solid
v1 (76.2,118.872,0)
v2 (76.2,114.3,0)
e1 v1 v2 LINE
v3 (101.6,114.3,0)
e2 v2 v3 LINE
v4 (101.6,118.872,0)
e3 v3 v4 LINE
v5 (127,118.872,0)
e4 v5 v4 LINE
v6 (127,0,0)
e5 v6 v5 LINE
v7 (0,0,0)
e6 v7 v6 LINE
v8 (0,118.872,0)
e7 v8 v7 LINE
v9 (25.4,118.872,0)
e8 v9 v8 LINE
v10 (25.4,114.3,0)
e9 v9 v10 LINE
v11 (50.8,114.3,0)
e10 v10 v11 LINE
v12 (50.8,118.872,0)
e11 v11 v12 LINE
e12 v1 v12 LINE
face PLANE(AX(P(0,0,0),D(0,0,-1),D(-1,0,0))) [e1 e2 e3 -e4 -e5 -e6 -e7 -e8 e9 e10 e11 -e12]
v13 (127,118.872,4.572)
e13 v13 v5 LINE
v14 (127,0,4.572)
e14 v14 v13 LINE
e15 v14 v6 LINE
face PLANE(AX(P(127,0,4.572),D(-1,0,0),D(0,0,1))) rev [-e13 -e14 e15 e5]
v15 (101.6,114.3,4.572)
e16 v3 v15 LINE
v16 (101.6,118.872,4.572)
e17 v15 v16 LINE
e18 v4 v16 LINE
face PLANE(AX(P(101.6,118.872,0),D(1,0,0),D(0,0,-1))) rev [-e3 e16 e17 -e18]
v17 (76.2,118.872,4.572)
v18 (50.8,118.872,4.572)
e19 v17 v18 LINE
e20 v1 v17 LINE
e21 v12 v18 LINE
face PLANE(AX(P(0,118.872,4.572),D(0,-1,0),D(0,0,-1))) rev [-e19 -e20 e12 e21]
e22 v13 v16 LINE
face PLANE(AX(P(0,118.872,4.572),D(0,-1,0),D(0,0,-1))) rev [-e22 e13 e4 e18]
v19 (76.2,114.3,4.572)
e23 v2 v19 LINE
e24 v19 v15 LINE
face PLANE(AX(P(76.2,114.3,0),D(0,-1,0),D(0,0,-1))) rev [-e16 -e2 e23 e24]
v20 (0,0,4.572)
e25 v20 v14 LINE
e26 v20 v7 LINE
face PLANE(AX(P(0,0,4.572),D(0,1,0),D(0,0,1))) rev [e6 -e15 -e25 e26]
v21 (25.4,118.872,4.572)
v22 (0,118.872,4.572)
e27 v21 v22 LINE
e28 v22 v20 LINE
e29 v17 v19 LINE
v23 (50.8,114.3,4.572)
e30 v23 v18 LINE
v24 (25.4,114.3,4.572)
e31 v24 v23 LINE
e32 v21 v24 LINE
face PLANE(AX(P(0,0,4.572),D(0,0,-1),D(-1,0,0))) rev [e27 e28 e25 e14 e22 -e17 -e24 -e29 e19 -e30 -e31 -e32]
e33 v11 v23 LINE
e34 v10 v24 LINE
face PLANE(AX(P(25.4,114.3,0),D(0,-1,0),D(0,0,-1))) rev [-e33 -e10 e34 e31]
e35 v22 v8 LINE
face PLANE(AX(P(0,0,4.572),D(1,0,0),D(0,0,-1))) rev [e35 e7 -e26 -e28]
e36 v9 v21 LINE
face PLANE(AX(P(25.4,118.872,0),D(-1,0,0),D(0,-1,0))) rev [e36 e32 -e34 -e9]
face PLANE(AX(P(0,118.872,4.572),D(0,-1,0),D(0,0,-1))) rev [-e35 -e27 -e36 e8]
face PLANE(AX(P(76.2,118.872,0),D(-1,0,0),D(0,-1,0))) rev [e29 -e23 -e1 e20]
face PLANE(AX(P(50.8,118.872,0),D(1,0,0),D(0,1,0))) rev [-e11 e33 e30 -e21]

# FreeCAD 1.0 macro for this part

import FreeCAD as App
import Part
import Sketcher
from FreeCAD import Vector
Q = App.Units.Quantity


def add_polygon(sketch, points):
    """Adds a closed chain of lines whose ends are joined by coincident constraints."""
    first, n = sketch.GeometryCount, len(points)
    for a, b in zip(points, points[1:] + points[:1]):
        sketch.addGeometry(Part.LineSegment(App.Vector(*a, 0), App.Vector(*b, 0)), False)
    for i in range(n):
        sketch.addConstraint(Sketcher.Constraint("Coincident", first + i, 2, first + (i + 1) % n, 1))

doc = App.newDocument("Part")
body = doc.addObject("PartDesign::Body", "Body")

sketch1 = body.newObject("Sketcher::SketchObject", "Sketch")
sketch1.AttachmentSupport = (doc.getObject("XY_Plane"), [""])
sketch1.MapMode = "FlatFace"
add_polygon(sketch1, [(0, 118.872), (0, 0), (127, 0), (127, 118.872)])
sketch1.addConstraint([
    Sketcher.Constraint("Vertical", 0),
    Sketcher.Constraint("Horizontal", 1),
    Sketcher.Constraint("Vertical", 2),
    Sketcher.Constraint("Horizontal", 3),
    Sketcher.Constraint("Coincident", 0, 2, -1, 1),
    Sketcher.Constraint("DistanceX", 1, 1, 1, 2, Q("5 in")),
    Sketcher.Constraint("DistanceY", 0, 2, 0, 1, Q("4.68 in")),
])
pad1 = body.newObject("PartDesign::Pad", "Pad")
pad1.Profile = sketch1
pad1.Length = Q("0.18 in")

sketch2 = body.newObject("Sketcher::SketchObject", "Sketch001")
sketch2.AttachmentSupport = (doc.getObject("XY_Plane"), [""])
sketch2.MapMode = "FlatFace"
sketch2.AttachmentOffset = App.Placement(Vector(0, 0, 0.18 * 25.4), App.Rotation())
add_polygon(sketch2, [(25.4, 118.872), (25.4, 114.3), (50.8, 114.3), (50.8, 118.872)])
add_polygon(sketch2, [(76.2, 118.872), (76.2, 114.3), (101.6, 114.3), (101.6, 118.872)])
sketch2.addConstraint([
    Sketcher.Constraint("Vertical", 0),
    Sketcher.Constraint("Horizontal", 1),
    Sketcher.Constraint("Vertical", 2),
    Sketcher.Constraint("Horizontal", 3),
    Sketcher.Constraint("Vertical", 4),
    Sketcher.Constraint("Horizontal", 5),
    Sketcher.Constraint("Vertical", 6),
    Sketcher.Constraint("Horizontal", 7),
    Sketcher.Constraint("Horizontal", 1, 2, 4, 2),
    Sketcher.Constraint("Horizontal", 3, 2, 6, 2),
    Sketcher.Constraint("Equal", 3, 5),
    Sketcher.Constraint("DistanceX", 1, 1, 1, 2, Q("1 in")),
    Sketcher.Constraint("DistanceX", -1, 1, 0, 2, Q("1 in")),
    Sketcher.Constraint("DistanceX", -1, 1, 4, 2, Q("3 in")),
    Sketcher.Constraint("DistanceY", 0, 2, 0, 1, Q("0.18 in")),
    Sketcher.Constraint("DistanceY", -1, 1, 0, 2, Q("4.5 in")),
])
pocket1 = body.newObject("PartDesign::Pocket", "Pocket")
pocket1.Profile = sketch2
pocket1.Length = Q("0.18 in")

doc.recompute()
